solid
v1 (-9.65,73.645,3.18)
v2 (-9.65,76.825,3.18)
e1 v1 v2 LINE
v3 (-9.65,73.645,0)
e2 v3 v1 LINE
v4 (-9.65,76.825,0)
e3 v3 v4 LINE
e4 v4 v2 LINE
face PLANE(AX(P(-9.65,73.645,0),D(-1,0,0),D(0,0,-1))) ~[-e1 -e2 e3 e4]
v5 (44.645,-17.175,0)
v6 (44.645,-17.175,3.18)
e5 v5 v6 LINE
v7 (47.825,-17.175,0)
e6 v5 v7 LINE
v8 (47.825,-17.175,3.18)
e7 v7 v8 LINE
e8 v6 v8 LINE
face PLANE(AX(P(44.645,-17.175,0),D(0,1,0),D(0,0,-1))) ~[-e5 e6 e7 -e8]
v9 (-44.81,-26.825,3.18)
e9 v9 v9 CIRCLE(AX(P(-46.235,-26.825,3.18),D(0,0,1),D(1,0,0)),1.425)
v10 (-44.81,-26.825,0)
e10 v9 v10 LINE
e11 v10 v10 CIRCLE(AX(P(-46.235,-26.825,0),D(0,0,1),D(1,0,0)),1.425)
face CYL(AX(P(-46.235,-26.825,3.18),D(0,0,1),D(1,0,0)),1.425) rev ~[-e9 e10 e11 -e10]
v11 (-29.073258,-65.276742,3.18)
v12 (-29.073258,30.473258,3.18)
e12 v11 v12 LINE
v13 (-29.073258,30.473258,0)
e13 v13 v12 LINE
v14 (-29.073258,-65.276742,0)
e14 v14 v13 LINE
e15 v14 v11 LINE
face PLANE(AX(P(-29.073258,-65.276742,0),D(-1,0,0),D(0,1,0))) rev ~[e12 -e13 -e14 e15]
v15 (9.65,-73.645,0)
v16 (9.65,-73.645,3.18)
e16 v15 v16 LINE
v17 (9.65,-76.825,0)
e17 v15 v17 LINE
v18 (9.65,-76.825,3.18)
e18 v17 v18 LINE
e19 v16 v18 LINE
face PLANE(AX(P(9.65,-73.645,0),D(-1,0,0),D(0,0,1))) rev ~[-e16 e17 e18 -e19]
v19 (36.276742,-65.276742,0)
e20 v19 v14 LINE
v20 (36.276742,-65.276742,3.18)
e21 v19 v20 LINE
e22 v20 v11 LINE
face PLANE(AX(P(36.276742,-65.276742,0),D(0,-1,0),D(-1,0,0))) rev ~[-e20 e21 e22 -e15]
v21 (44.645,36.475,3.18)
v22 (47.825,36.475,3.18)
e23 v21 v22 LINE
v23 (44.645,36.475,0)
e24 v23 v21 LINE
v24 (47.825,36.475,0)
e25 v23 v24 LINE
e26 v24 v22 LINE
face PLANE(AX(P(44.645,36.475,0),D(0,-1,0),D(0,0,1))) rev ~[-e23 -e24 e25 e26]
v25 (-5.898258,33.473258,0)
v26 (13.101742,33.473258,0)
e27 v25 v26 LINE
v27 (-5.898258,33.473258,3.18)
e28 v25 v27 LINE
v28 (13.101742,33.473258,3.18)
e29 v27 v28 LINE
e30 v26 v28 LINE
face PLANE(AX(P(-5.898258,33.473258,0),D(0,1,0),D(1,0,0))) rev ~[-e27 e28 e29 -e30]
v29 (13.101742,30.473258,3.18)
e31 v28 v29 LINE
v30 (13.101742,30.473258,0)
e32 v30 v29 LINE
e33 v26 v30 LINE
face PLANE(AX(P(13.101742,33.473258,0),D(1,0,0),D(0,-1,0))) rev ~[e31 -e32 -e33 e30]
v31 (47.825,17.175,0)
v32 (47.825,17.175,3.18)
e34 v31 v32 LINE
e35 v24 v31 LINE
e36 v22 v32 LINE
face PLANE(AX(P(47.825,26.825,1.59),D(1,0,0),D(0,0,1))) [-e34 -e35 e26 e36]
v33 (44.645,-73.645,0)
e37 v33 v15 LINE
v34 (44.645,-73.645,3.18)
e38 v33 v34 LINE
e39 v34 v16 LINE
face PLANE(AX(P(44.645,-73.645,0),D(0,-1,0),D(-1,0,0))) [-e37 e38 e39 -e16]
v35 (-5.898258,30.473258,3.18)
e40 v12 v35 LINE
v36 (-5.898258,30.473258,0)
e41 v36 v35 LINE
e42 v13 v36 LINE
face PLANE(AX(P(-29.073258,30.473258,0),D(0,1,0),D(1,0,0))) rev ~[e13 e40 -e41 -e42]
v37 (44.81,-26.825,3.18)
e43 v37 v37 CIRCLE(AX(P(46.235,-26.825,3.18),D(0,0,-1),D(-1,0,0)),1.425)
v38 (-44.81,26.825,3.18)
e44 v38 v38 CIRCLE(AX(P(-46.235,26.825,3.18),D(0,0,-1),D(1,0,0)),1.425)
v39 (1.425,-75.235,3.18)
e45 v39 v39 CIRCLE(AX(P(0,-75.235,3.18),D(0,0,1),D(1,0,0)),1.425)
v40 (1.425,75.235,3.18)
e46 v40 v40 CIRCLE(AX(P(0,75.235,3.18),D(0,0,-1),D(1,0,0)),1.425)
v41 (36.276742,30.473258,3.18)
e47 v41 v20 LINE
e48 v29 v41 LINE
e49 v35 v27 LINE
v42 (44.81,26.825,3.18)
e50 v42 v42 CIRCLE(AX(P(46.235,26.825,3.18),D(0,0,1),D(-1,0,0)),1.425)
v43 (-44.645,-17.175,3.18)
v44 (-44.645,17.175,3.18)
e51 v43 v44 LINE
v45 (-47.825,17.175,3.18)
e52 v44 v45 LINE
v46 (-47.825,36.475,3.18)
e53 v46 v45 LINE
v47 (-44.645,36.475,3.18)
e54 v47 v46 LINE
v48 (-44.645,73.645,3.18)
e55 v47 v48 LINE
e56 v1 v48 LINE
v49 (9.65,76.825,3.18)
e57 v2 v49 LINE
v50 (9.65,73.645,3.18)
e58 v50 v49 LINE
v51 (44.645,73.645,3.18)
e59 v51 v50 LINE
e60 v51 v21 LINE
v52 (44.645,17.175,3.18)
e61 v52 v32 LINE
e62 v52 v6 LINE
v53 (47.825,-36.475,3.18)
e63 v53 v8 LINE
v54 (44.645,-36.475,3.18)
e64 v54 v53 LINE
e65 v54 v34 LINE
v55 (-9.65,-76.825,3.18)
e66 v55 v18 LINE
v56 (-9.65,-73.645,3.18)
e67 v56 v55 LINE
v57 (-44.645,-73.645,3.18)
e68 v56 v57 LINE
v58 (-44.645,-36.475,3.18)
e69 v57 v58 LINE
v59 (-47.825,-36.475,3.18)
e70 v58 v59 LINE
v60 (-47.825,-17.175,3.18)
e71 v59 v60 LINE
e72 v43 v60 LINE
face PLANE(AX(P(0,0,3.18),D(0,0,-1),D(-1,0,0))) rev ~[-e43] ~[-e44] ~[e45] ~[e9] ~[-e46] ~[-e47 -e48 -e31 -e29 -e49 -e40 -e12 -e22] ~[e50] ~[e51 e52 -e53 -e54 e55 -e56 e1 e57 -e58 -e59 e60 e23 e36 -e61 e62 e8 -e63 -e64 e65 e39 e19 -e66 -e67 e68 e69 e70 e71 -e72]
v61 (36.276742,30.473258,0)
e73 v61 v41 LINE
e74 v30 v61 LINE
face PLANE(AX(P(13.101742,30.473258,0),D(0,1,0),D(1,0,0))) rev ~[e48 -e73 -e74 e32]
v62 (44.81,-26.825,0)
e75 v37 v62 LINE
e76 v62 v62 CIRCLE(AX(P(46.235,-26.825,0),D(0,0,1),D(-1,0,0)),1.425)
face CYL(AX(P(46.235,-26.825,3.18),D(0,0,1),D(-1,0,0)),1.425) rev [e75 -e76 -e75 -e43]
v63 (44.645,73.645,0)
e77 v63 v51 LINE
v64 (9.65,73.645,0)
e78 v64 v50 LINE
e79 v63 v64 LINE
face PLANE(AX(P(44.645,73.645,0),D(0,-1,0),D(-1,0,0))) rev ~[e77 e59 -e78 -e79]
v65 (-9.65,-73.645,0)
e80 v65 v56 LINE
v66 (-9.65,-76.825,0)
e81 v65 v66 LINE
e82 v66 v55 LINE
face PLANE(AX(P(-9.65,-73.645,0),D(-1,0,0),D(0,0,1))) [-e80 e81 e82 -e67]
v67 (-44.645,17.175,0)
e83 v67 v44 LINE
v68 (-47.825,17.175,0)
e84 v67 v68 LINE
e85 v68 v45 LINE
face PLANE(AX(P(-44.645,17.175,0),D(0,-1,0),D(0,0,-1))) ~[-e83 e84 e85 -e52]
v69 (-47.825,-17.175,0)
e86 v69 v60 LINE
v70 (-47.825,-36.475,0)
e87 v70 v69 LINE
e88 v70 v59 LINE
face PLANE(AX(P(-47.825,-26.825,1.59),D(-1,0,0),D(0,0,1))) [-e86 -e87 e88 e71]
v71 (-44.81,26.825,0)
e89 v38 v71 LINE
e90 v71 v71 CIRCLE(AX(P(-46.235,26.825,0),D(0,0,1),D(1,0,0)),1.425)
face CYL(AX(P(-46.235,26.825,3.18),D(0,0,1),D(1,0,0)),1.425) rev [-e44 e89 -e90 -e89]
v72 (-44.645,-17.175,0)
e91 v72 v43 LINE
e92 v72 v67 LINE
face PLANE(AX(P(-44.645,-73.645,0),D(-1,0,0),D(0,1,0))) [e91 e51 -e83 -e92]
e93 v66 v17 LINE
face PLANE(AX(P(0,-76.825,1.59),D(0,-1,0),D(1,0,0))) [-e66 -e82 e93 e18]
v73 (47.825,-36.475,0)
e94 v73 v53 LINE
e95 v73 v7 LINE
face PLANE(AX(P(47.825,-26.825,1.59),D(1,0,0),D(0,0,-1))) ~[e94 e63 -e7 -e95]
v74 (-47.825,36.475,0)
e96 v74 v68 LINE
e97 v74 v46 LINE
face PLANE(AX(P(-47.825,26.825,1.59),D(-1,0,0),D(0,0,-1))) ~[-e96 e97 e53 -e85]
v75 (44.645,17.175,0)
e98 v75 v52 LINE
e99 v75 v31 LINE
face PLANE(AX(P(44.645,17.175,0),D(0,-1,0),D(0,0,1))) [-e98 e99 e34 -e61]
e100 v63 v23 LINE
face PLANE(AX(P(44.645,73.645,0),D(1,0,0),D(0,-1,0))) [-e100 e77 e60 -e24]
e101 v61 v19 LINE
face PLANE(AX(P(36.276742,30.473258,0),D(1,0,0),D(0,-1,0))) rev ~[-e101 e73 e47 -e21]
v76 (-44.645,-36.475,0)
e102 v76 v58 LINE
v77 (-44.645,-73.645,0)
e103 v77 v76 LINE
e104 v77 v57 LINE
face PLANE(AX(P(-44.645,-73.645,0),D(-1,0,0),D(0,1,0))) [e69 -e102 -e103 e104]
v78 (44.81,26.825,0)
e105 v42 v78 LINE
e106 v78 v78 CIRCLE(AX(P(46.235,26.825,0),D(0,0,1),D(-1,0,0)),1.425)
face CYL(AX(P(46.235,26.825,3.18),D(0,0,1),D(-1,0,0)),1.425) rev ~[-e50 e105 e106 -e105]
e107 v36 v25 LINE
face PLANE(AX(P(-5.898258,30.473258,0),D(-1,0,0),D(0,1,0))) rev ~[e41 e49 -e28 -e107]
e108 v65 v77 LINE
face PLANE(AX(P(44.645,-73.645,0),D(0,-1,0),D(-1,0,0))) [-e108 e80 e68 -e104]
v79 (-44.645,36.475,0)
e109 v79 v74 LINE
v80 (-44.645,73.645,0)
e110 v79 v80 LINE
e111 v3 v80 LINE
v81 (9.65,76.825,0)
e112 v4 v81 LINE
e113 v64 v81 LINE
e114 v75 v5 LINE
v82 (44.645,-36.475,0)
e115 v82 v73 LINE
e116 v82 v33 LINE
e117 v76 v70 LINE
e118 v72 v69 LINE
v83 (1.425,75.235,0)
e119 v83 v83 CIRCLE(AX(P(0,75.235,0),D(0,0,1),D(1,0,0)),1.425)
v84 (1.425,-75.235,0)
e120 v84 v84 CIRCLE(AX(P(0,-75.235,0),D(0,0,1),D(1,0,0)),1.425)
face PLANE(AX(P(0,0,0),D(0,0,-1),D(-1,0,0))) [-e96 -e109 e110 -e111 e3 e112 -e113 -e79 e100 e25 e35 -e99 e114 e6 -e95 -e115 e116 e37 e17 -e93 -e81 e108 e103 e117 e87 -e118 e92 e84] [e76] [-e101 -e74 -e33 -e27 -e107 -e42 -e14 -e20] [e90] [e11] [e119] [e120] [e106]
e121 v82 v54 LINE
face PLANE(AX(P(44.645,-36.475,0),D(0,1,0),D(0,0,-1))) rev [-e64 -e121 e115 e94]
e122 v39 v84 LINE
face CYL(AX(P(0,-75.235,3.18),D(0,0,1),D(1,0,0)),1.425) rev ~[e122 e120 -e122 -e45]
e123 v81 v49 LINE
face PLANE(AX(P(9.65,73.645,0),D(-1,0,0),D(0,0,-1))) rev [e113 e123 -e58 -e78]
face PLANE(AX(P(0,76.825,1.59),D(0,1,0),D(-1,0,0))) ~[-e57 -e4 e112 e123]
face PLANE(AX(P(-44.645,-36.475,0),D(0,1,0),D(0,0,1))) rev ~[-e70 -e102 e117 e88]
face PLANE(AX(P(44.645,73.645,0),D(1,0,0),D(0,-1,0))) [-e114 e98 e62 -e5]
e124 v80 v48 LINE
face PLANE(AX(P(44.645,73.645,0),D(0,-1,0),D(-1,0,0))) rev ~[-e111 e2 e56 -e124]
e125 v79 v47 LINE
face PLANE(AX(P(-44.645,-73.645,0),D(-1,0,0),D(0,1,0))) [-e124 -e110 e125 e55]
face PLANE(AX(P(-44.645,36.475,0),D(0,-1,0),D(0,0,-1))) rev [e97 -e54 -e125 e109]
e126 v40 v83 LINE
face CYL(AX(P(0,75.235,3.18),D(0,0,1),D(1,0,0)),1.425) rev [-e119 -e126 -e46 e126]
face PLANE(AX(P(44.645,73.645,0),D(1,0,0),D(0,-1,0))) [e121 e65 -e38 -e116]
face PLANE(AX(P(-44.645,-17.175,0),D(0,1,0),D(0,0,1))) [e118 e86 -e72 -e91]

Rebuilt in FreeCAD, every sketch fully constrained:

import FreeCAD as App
import Part
import Sketcher
from FreeCAD import Vector

doc = App.newDocument("Part")
body = doc.addObject("PartDesign::Body", "Body")

sketch1 = body.newObject("Sketcher::SketchObject", "Sketch")
sketch1.AttachmentSupport = (doc.getObject("XY_Plane"), [""])
sketch1.MapMode = "FlatFace"
sketch1.addGeometry(Part.LineSegment(Vector(44.645, 73.645, 0), Vector(-44.645, 73.645, 0)), False)
sketch1.addGeometry(Part.LineSegment(Vector(-44.645, 73.645, 0), Vector(-44.645, -73.645, 0)), False)
sketch1.addGeometry(Part.LineSegment(Vector(-44.645, -73.645, 0), Vector(44.645, -73.645, 0)), False)
sketch1.addGeometry(Part.LineSegment(Vector(44.645, -73.645, 0), Vector(44.645, 73.645, 0)), False)
sketch1.addConstraint(Sketcher.Constraint("Coincident", 0, 2, 1, 1))
sketch1.addConstraint(Sketcher.Constraint("Coincident", 1, 2, 2, 1))
sketch1.addConstraint(Sketcher.Constraint("Coincident", 2, 2, 3, 1))
sketch1.addConstraint(Sketcher.Constraint("Coincident", 3, 2, 0, 1))
sketch1.addConstraint(Sketcher.Constraint("Horizontal", 0))
sketch1.addConstraint(Sketcher.Constraint("Vertical", 1))
sketch1.addConstraint(Sketcher.Constraint("Horizontal", 2))
sketch1.addConstraint(Sketcher.Constraint("Vertical", 3))
sketch1.addConstraint(Sketcher.Constraint("Symmetric", 0, 2, 2, 2, -1, 1))
sketch1.addConstraint(Sketcher.Constraint("DistanceX", 0, 2, 0, 1, 89.29))
sketch1.addConstraint(Sketcher.Constraint("DistanceY", 1, 2, 1, 1, 147.29))
pad1 = body.newObject("PartDesign::Pad", "Pad")
pad1.Profile = sketch1
pad1.Length = 3.18

sketch2 = body.newObject("Sketcher::SketchObject", "Sketch001")
sketch2.AttachmentSupport = (doc.getObject("XY_Plane"), [""])
sketch2.MapMode = "FlatFace"
sketch2.addGeometry(Part.LineSegment(Vector(13.101742, 33.473258, 0), Vector(13.101742, 30.473258, 0)), False)
sketch2.addGeometry(Part.LineSegment(Vector(13.101742, 30.473258, 0), Vector(36.276742, 30.473258, 0)), False)
sketch2.addGeometry(Part.LineSegment(Vector(36.276742, 30.473258, 0), Vector(36.276742, -65.276742, 0)), False)
sketch2.addGeometry(Part.LineSegment(Vector(36.276742, -65.276742, 0), Vector(-29.073258, -65.276742, 0)), False)
sketch2.addGeometry(Part.LineSegment(Vector(-29.073258, -65.276742, 0), Vector(-29.073258, 30.473258, 0)), False)
sketch2.addGeometry(Part.LineSegment(Vector(-29.073258, 30.473258, 0), Vector(-5.898258, 30.473258, 0)), False)
sketch2.addGeometry(Part.LineSegment(Vector(-5.898258, 30.473258, 0), Vector(-5.898258, 33.473258, 0)), False)
sketch2.addGeometry(Part.LineSegment(Vector(-5.898258, 33.473258, 0), Vector(13.101742, 33.473258, 0)), False)
sketch2.addConstraint(Sketcher.Constraint("Coincident", 0, 2, 1, 1))
sketch2.addConstraint(Sketcher.Constraint("Coincident", 1, 2, 2, 1))
sketch2.addConstraint(Sketcher.Constraint("Coincident", 2, 2, 3, 1))
sketch2.addConstraint(Sketcher.Constraint("Coincident", 3, 2, 4, 1))
sketch2.addConstraint(Sketcher.Constraint("Coincident", 4, 2, 5, 1))
sketch2.addConstraint(Sketcher.Constraint("Coincident", 5, 2, 6, 1))
sketch2.addConstraint(Sketcher.Constraint("Coincident", 6, 2, 7, 1))
sketch2.addConstraint(Sketcher.Constraint("Coincident", 7, 2, 0, 1))
sketch2.addConstraint(Sketcher.Constraint("Vertical", 0))
sketch2.addConstraint(Sketcher.Constraint("Horizontal", 1))
sketch2.addConstraint(Sketcher.Constraint("Vertical", 2))
sketch2.addConstraint(Sketcher.Constraint("Horizontal", 3))
sketch2.addConstraint(Sketcher.Constraint("Vertical", 4))
sketch2.addConstraint(Sketcher.Constraint("Horizontal", 5))
sketch2.addConstraint(Sketcher.Constraint("Vertical", 6))
sketch2.addConstraint(Sketcher.Constraint("Horizontal", 7))
sketch2.addConstraint(Sketcher.Constraint("Horizontal", 1, 2, 4, 2))
sketch2.addConstraint(Sketcher.Constraint("Equal", 1, 5))
sketch2.addConstraint(Sketcher.Constraint("DistanceX", 7, 1, 7, 2, 19.0))
sketch2.addConstraint(Sketcher.Constraint("DistanceY", 0, 2, 0, 1, 3.0))
sketch2.addConstraint(Sketcher.Constraint("DistanceX", 3, 2, 3, 1, 65.35))
sketch2.addConstraint(Sketcher.Constraint("DistanceY", 2, 2, 2, 1, 95.75))
sketch2.addConstraint(Sketcher.Constraint("DistanceX", -1, 1, 0, 2, 13.101742))
sketch2.addConstraint(Sketcher.Constraint("DistanceY", -1, 1, 0, 2, 30.473258))
pocket1 = body.newObject("PartDesign::Pocket", "Pocket")
pocket1.Profile = sketch2
pocket1.Type = "ThroughAll"
pocket1.Reversed = True

sketch3 = body.newObject("Sketcher::SketchObject", "Sketch002")
sketch3.AttachmentSupport = (doc.getObject("YZ_Plane"), [""])
sketch3.MapMode = "FlatFace"
sketch3.AttachmentOffset = App.Placement(Vector(0, 0, -44.645), App.Rotation())
sketch3.addGeometry(Part.LineSegment(Vector(-17.175, 0, 0), Vector(-36.475, 0, 0)), False)
sketch3.addGeometry(Part.LineSegment(Vector(-36.475, 0, 0), Vector(-36.475, 3.18, 0)), False)
sketch3.addGeometry(Part.LineSegment(Vector(-36.475, 3.18, 0), Vector(-17.175, 3.18, 0)), False)
sketch3.addGeometry(Part.LineSegment(Vector(-17.175, 3.18, 0), Vector(-17.175, 0, 0)), False)
sketch3.addConstraint(Sketcher.Constraint("Coincident", 0, 2, 1, 1))
sketch3.addConstraint(Sketcher.Constraint("Coincident", 1, 2, 2, 1))
sketch3.addConstraint(Sketcher.Constraint("Coincident", 2, 2, 3, 1))
sketch3.addConstraint(Sketcher.Constraint("Coincident", 3, 2, 0, 1))
sketch3.addConstraint(Sketcher.Constraint("Horizontal", 0))
sketch3.addConstraint(Sketcher.Constraint("Vertical", 1))
sketch3.addConstraint(Sketcher.Constraint("Horizontal", 2))
sketch3.addConstraint(Sketcher.Constraint("Vertical", 3))
sketch3.addConstraint(Sketcher.Constraint("PointOnObject", 0, 2, -1))
sketch3.addConstraint(Sketcher.Constraint("DistanceX", 0, 2, 0, 1, 19.3))
sketch3.addConstraint(Sketcher.Constraint("DistanceY", 1, 1, 1, 2, 3.18))
sketch3.addConstraint(Sketcher.Constraint("DistanceX", 0, 2, -1, 1, 36.475))
pad2 = body.newObject("PartDesign::Pad", "Pad001")
pad2.Profile = sketch3
pad2.Length = 3.18
pad2.Reversed = True

sketch4 = body.newObject("Sketcher::SketchObject", "Sketch003")
sketch4.AttachmentSupport = (doc.getObject("XZ_Plane"), [""])
sketch4.MapMode = "FlatFace"
sketch4.AttachmentOffset = App.Placement(Vector(0, 0, 73.645), App.Rotation())
sketch4.addGeometry(Part.LineSegment(Vector(-9.65, 3.18, 0), Vector(-9.65, 0, 0)), False)
sketch4.addGeometry(Part.LineSegment(Vector(-9.65, 0, 0), Vector(9.65, 0, 0)), False)
sketch4.addGeometry(Part.LineSegment(Vector(9.65, 0, 0), Vector(9.65, 3.18, 0)), False)
sketch4.addGeometry(Part.LineSegment(Vector(9.65, 3.18, 0), Vector(-9.65, 3.18, 0)), False)
sketch4.addConstraint(Sketcher.Constraint("Coincident", 0, 2, 1, 1))
sketch4.addConstraint(Sketcher.Constraint("Coincident", 1, 2, 2, 1))
sketch4.addConstraint(Sketcher.Constraint("Coincident", 2, 2, 3, 1))
sketch4.addConstraint(Sketcher.Constraint("Coincident", 3, 2, 0, 1))
sketch4.addConstraint(Sketcher.Constraint("Vertical", 0))
sketch4.addConstraint(Sketcher.Constraint("Horizontal", 1))
sketch4.addConstraint(Sketcher.Constraint("Vertical", 2))
sketch4.addConstraint(Sketcher.Constraint("Horizontal", 3))
sketch4.addConstraint(Sketcher.Constraint("Symmetric", 0, 2, 1, 2, -1, 1))
sketch4.addConstraint(Sketcher.Constraint("DistanceX", 1, 1, 1, 2, 19.3))
sketch4.addConstraint(Sketcher.Constraint("DistanceY", 0, 2, 0, 1, 3.18))
pad3 = body.newObject("PartDesign::Pad", "Pad002")
pad3.Profile = sketch4
pad3.Length = 3.18

sketch5 = body.newObject("Sketcher::SketchObject", "Sketch004")
sketch5.AttachmentSupport = (doc.getObject("XY_Plane"), [""])
sketch5.MapMode = "FlatFace"
sketch5.AttachmentOffset = App.Placement(Vector(0, 0, 3.18), App.Rotation())
sketch5.addGeometry(Part.Circle(Vector(-46.235, -26.825, 0), Vector(0, 0, 1), 1.425), False)
sketch5.addConstraint(Sketcher.Constraint("Diameter", 0, 2.85))
sketch5.addConstraint(Sketcher.Constraint("DistanceX", 0, 3, -1, 1, 46.235))
sketch5.addConstraint(Sketcher.Constraint("DistanceY", 0, 3, -1, 1, 26.825))
pocket2 = body.newObject("PartDesign::Pocket", "Pocket001")
pocket2.Profile = sketch5
pocket2.Type = "ThroughAll"

sketch6 = body.newObject("Sketcher::SketchObject", "Sketch005")
sketch6.AttachmentSupport = (doc.getObject("XY_Plane"), [""])
sketch6.MapMode = "FlatFace"
sketch6.AttachmentOffset = App.Placement(Vector(0, 0, 3.18), App.Rotation())
sketch6.addGeometry(Part.Circle(Vector(0, -75.235, 0), Vector(0, 0, 1), 1.425), False)
sketch6.addConstraint(Sketcher.Constraint("PointOnObject", 0, 3, -2))
sketch6.addConstraint(Sketcher.Constraint("Diameter", 0, 2.85))
sketch6.addConstraint(Sketcher.Constraint("DistanceY", 0, 3, -1, 1, 75.235))
pocket3 = body.newObject("PartDesign::Pocket", "Pocket002")
pocket3.Profile = sketch6
pocket3.Type = "ThroughAll"
doc.recompute()

mirrored = body.newObject("PartDesign::Mirrored", "Mirrored")
mirrored.Originals = [pad2, pocket2]
mirrored.MirrorPlane = (doc.getObject("YZ_Plane"), [""])
body.Tip = mirrored
doc.recompute()

mirrored2 = body.newObject("PartDesign::Mirrored", "Mirrored001")
mirrored2.Originals = [pad2, pad3, pocket2, pocket3]
mirrored2.MirrorPlane = (doc.getObject("XZ_Plane"), [""])
body.Tip = mirrored2

sketch7 = body.newObject("Sketcher::SketchObject", "Sketch006")
sketch7.AttachmentSupport = (doc.getObject("YZ_Plane"), [""])
sketch7.MapMode = "FlatFace"
sketch7.AttachmentOffset = App.Placement(Vector(0, 0, 44.645), App.Rotation())
sketch7.addGeometry(Part.LineSegment(Vector(17.175, 0, 0), Vector(36.475, 0, 0)), False)
sketch7.addGeometry(Part.LineSegment(Vector(36.475, 0, 0), Vector(36.475, 3.18, 0)), False)
sketch7.addGeometry(Part.LineSegment(Vector(36.475, 3.18, 0), Vector(17.175, 3.18, 0)), False)
sketch7.addGeometry(Part.LineSegment(Vector(17.175, 3.18, 0), Vector(17.175, 0, 0)), False)
sketch7.addConstraint(Sketcher.Constraint("Coincident", 0, 2, 1, 1))
sketch7.addConstraint(Sketcher.Constraint("Coincident", 1, 2, 2, 1))
sketch7.addConstraint(Sketcher.Constraint("Coincident", 2, 2, 3, 1))
sketch7.addConstraint(Sketcher.Constraint("Coincident", 3, 2, 0, 1))
sketch7.addConstraint(Sketcher.Constraint("Horizontal", 0))
sketch7.addConstraint(Sketcher.Constraint("Vertical", 1))
sketch7.addConstraint(Sketcher.Constraint("Horizontal", 2))
sketch7.addConstraint(Sketcher.Constraint("Vertical", 3))
sketch7.addConstraint(Sketcher.Constraint("PointOnObject", 0, 2, -1))
sketch7.addConstraint(Sketcher.Constraint("DistanceX", 0, 1, 0, 2, 19.3))
sketch7.addConstraint(Sketcher.Constraint("DistanceY", 1, 1, 1, 2, 3.18))
sketch7.addConstraint(Sketcher.Constraint("DistanceX", -1, 1, 0, 2, 36.475))
pad4 = body.newObject("PartDesign::Pad", "Pad003")
pad4.Profile = sketch7
pad4.Length = 3.18

sketch8 = body.newObject("Sketcher::SketchObject", "Sketch007")
sketch8.AttachmentSupport = (doc.getObject("XY_Plane"), [""])
sketch8.MapMode = "FlatFace"
sketch8.AttachmentOffset = App.Placement(Vector(0, 0, 3.18), App.Rotation())
sketch8.addGeometry(Part.Circle(Vector(46.235, 26.825, 0), Vector(0, 0, 1), 1.425), False)
sketch8.addConstraint(Sketcher.Constraint("Diameter", 0, 2.85))
sketch8.addConstraint(Sketcher.Constraint("DistanceX", -1, 1, 0, 3, 46.235))
sketch8.addConstraint(Sketcher.Constraint("DistanceY", -1, 1, 0, 3, 26.825))
pocket4 = body.newObject("PartDesign::Pocket", "Pocket003")
pocket4.Profile = sketch8
pocket4.Type = "ThroughAll"

doc.recompute()
